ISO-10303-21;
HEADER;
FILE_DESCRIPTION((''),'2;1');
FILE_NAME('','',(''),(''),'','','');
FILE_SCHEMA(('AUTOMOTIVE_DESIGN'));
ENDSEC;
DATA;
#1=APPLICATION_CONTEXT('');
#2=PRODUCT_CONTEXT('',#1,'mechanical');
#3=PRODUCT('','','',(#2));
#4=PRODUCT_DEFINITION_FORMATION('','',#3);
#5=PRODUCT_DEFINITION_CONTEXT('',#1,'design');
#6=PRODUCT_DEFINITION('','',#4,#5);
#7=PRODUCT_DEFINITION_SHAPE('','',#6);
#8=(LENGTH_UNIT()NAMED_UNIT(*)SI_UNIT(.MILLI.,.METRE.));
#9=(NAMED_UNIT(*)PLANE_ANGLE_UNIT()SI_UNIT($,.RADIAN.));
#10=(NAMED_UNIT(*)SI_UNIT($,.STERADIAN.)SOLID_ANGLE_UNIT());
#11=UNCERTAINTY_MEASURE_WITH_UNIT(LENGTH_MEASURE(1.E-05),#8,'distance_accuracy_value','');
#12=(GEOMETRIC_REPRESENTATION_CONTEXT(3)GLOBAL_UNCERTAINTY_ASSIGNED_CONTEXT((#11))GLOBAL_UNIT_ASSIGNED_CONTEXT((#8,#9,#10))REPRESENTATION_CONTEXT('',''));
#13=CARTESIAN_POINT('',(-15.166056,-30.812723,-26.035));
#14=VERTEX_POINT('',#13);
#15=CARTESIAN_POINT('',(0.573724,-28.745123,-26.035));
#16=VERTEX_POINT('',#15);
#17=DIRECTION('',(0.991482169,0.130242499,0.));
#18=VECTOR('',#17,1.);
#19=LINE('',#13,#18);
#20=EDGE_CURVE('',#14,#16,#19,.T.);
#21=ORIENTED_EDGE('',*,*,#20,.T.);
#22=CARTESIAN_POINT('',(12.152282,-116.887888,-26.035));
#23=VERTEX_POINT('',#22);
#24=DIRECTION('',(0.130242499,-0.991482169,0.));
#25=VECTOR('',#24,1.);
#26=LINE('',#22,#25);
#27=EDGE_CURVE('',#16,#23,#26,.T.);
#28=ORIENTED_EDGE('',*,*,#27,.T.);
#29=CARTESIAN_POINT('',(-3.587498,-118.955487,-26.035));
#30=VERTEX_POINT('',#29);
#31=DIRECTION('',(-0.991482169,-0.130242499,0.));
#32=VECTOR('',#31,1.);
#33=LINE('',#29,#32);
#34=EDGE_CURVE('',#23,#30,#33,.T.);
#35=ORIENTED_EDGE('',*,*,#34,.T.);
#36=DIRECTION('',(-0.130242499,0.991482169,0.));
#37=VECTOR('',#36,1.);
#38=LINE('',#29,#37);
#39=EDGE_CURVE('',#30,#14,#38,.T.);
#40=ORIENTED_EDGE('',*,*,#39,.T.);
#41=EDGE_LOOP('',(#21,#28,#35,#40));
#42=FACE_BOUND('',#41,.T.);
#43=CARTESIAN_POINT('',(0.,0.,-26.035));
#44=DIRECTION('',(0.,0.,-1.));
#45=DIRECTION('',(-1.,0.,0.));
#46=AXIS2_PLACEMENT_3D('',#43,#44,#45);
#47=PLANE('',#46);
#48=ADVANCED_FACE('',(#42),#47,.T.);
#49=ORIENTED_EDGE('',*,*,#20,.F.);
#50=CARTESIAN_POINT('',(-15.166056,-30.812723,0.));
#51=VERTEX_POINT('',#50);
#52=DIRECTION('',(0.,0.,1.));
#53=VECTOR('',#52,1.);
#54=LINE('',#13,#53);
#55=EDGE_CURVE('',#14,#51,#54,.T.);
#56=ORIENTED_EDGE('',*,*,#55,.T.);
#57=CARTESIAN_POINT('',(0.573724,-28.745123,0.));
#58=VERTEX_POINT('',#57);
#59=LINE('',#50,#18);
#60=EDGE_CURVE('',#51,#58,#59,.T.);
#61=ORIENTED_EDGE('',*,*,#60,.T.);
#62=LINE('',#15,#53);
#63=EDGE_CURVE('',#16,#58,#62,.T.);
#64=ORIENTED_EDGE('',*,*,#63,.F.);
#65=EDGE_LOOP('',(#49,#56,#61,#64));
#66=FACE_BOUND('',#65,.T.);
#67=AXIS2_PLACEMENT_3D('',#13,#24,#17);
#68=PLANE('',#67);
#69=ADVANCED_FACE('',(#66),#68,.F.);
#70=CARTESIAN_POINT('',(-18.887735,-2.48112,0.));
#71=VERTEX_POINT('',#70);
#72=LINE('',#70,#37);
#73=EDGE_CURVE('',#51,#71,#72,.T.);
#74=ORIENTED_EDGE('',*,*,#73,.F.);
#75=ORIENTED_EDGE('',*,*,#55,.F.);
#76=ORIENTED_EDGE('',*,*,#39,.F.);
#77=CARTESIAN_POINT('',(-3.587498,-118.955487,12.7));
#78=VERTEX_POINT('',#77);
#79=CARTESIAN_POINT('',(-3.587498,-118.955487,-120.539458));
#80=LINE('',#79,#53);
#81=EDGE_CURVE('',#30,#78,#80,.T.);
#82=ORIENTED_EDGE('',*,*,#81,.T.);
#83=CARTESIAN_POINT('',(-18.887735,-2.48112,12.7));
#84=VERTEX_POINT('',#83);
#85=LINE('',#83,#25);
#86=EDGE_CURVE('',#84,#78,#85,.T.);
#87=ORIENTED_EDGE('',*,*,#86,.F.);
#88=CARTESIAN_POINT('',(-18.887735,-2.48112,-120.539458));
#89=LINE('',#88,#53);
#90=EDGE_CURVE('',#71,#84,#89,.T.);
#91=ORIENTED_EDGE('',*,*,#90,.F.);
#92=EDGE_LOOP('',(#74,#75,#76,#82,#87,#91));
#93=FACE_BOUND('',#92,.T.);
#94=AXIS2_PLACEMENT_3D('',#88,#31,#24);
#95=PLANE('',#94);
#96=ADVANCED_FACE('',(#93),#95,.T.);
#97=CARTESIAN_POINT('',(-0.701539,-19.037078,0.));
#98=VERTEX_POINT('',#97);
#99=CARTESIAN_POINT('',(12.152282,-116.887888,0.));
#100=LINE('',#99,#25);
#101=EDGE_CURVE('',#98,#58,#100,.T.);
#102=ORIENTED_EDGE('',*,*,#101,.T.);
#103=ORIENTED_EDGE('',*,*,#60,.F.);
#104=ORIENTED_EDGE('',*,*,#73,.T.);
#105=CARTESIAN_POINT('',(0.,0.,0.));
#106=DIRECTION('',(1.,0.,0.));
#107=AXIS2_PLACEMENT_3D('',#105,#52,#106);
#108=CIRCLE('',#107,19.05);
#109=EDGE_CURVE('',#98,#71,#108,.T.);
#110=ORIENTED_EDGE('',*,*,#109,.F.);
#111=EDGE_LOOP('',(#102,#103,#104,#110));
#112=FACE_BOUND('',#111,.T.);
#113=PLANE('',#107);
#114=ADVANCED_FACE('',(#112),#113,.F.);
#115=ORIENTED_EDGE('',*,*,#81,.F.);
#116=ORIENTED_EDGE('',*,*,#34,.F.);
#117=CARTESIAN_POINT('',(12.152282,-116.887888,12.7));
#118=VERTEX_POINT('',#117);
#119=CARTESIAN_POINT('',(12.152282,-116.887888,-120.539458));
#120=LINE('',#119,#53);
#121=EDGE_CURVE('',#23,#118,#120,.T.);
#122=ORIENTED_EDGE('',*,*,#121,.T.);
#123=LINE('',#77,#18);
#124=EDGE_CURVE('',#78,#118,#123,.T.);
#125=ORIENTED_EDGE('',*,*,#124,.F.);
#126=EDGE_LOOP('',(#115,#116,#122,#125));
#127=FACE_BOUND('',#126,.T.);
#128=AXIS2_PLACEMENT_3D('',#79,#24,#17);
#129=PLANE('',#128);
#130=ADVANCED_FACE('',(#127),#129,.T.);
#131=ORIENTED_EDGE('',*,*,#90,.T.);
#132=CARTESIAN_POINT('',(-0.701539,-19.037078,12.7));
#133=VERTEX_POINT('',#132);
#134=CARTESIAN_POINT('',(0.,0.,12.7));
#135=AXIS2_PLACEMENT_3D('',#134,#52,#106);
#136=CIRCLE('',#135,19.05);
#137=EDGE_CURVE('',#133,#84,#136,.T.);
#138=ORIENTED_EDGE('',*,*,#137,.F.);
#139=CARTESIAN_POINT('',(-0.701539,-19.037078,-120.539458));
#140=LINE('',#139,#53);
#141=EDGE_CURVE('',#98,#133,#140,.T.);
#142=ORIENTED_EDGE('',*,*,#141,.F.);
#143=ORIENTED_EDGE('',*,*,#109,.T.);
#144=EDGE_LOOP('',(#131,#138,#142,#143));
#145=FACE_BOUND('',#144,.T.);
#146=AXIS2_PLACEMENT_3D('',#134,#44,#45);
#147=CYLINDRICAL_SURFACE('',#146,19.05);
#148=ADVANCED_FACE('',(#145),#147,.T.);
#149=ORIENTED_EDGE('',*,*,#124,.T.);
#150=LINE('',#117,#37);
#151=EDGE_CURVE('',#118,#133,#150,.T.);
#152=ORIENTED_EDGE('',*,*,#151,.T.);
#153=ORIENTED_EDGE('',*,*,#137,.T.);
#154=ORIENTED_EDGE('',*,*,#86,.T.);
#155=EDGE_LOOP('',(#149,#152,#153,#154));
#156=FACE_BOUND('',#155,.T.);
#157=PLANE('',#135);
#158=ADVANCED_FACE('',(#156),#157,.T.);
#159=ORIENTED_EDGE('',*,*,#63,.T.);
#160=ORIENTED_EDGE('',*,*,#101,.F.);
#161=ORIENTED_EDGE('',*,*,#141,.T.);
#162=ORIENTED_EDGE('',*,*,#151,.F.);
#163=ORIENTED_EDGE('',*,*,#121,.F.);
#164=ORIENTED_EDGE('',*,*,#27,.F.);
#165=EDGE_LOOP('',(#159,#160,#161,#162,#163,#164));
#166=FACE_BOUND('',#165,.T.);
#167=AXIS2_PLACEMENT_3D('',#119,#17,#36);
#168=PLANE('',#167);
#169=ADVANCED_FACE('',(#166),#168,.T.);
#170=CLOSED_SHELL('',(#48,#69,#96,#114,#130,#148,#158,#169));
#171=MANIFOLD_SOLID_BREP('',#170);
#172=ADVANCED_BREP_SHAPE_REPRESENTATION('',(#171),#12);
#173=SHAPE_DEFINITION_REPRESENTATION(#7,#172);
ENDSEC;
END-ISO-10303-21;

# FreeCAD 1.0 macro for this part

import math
import FreeCAD as App
import Part
import Sketcher

V = App.Vector
Q = App.Units.Quantity

doc = App.newDocument("Part")
body = doc.addObject("PartDesign::Body", "Body")

# Sketch on XY plane
sketch1 = doc.addObject("Sketcher::SketchObject", "Sketch")
body.addObject(sketch1)
sketch1.AttachmentSupport = (doc.XY_Plane, [""])
sketch1.MapMode = "FlatFace"
sketch1.addGeometry(Part.Circle(V(0, 0, 0), V(0, 0, 1), 19), False)
sketch1.addConstraint([
    Sketcher.Constraint("Coincident", 0, 3, -1, 1),
    Sketcher.Constraint("Diameter", 0, Q("1.5 in")),
])
pad1 = doc.addObject("PartDesign::Pad", "Pad")
body.addObject(pad1)
pad1.Profile = sketch1
pad1.Length = Q("0.5 in")

# Sketch on XY plane
sketch2 = doc.addObject("Sketcher::SketchObject", "Sketch001")
body.addObject(sketch2)
sketch2.AttachmentSupport = (doc.XY_Plane, [""])
sketch2.MapMode = "FlatFace"
sketch2.addGeometry([
    Part.LineSegment(V(-19, -2, 0), V(-4, -119, 0)),
    Part.LineSegment(V(-4, -119, 0), V(12, -117, 0)),
    Part.LineSegment(V(12, -117, 0), V(-1, -19, 0)),
    Part.ArcOfCircle(Part.Circle(V(0, 0, 0), V(0, 0, 1), 19), math.radians(-173), math.radians(-92)),
], False)
sketch2.addConstraint([
    Sketcher.Constraint("Coincident", 0, 2, 1, 1),
    Sketcher.Constraint("Coincident", 1, 2, 2, 1),
    Sketcher.Constraint("Coincident", 2, 2, 3, 2),
    Sketcher.Constraint("Tangent", 3, 1, 0, 1),
    Sketcher.Constraint("Coincident", 3, 3, -1, 1),
    Sketcher.Constraint("Perpendicular", 0, 1),
    Sketcher.Constraint("Perpendicular", 1, 2),
    Sketcher.Constraint("Radius", 3, Q("0.75 in")),
    Sketcher.Constraint("Distance", 0, Q("4.625 in")),
    Sketcher.Constraint("Distance", 1, Q("0.625 in")),
    Sketcher.Constraint("DistanceY", 0, 2, 1, 2, Q("2.0676 mm")),
])
pad2 = doc.addObject("PartDesign::Pad", "Pad001")
body.addObject(pad2)
pad2.Profile = sketch2
pad2.Length = Q("0.5 in")

# Sketch on XY plane
sketch3 = doc.addObject("Sketcher::SketchObject", "Sketch002")
body.addObject(sketch3)
sketch3.AttachmentSupport = (doc.XY_Plane, [""])
sketch3.MapMode = "FlatFace"
sketch3.addGeometry([
    Part.LineSegment(V(12, -117, 0), V(-4, -119, 0)),
    Part.LineSegment(V(-4, -119, 0), V(-15, -31, 0)),
    Part.LineSegment(V(-15, -31, 0), V(1, -29, 0)),
    Part.LineSegment(V(1, -29, 0), V(12, -117, 0)),
], False)
sketch3.addConstraint([
    Sketcher.Constraint("Coincident", 0, 2, 1, 1),
    Sketcher.Constraint("Coincident", 1, 2, 2, 1),
    Sketcher.Constraint("Coincident", 2, 2, 3, 1),
    Sketcher.Constraint("Coincident", 3, 2, 0, 1),
    Sketcher.Constraint("Perpendicular", 0, 1),
    Sketcher.Constraint("Perpendicular", 1, 2),
    Sketcher.Constraint("Perpendicular", 2, 3),
    Sketcher.Constraint("Distance", 1, Q("3.5 in")),
    Sketcher.Constraint("Distance", 0, Q("0.625 in")),
    Sketcher.Constraint("DistanceY", 1, 2, 2, 2, Q("2.0676 mm")),
    Sketcher.Constraint("DistanceX", -1, 1, 3, 2, Q("12.152282 mm")),
    Sketcher.Constraint("DistanceY", 0, 2, -1, 1, Q("118.955487 mm")),
])
pad3 = doc.addObject("PartDesign::Pad", "Pad002")
body.addObject(pad3)
pad3.Profile = sketch3
pad3.Length = Q("1.025 in")
pad3.Reversed = True

doc.recompute()
